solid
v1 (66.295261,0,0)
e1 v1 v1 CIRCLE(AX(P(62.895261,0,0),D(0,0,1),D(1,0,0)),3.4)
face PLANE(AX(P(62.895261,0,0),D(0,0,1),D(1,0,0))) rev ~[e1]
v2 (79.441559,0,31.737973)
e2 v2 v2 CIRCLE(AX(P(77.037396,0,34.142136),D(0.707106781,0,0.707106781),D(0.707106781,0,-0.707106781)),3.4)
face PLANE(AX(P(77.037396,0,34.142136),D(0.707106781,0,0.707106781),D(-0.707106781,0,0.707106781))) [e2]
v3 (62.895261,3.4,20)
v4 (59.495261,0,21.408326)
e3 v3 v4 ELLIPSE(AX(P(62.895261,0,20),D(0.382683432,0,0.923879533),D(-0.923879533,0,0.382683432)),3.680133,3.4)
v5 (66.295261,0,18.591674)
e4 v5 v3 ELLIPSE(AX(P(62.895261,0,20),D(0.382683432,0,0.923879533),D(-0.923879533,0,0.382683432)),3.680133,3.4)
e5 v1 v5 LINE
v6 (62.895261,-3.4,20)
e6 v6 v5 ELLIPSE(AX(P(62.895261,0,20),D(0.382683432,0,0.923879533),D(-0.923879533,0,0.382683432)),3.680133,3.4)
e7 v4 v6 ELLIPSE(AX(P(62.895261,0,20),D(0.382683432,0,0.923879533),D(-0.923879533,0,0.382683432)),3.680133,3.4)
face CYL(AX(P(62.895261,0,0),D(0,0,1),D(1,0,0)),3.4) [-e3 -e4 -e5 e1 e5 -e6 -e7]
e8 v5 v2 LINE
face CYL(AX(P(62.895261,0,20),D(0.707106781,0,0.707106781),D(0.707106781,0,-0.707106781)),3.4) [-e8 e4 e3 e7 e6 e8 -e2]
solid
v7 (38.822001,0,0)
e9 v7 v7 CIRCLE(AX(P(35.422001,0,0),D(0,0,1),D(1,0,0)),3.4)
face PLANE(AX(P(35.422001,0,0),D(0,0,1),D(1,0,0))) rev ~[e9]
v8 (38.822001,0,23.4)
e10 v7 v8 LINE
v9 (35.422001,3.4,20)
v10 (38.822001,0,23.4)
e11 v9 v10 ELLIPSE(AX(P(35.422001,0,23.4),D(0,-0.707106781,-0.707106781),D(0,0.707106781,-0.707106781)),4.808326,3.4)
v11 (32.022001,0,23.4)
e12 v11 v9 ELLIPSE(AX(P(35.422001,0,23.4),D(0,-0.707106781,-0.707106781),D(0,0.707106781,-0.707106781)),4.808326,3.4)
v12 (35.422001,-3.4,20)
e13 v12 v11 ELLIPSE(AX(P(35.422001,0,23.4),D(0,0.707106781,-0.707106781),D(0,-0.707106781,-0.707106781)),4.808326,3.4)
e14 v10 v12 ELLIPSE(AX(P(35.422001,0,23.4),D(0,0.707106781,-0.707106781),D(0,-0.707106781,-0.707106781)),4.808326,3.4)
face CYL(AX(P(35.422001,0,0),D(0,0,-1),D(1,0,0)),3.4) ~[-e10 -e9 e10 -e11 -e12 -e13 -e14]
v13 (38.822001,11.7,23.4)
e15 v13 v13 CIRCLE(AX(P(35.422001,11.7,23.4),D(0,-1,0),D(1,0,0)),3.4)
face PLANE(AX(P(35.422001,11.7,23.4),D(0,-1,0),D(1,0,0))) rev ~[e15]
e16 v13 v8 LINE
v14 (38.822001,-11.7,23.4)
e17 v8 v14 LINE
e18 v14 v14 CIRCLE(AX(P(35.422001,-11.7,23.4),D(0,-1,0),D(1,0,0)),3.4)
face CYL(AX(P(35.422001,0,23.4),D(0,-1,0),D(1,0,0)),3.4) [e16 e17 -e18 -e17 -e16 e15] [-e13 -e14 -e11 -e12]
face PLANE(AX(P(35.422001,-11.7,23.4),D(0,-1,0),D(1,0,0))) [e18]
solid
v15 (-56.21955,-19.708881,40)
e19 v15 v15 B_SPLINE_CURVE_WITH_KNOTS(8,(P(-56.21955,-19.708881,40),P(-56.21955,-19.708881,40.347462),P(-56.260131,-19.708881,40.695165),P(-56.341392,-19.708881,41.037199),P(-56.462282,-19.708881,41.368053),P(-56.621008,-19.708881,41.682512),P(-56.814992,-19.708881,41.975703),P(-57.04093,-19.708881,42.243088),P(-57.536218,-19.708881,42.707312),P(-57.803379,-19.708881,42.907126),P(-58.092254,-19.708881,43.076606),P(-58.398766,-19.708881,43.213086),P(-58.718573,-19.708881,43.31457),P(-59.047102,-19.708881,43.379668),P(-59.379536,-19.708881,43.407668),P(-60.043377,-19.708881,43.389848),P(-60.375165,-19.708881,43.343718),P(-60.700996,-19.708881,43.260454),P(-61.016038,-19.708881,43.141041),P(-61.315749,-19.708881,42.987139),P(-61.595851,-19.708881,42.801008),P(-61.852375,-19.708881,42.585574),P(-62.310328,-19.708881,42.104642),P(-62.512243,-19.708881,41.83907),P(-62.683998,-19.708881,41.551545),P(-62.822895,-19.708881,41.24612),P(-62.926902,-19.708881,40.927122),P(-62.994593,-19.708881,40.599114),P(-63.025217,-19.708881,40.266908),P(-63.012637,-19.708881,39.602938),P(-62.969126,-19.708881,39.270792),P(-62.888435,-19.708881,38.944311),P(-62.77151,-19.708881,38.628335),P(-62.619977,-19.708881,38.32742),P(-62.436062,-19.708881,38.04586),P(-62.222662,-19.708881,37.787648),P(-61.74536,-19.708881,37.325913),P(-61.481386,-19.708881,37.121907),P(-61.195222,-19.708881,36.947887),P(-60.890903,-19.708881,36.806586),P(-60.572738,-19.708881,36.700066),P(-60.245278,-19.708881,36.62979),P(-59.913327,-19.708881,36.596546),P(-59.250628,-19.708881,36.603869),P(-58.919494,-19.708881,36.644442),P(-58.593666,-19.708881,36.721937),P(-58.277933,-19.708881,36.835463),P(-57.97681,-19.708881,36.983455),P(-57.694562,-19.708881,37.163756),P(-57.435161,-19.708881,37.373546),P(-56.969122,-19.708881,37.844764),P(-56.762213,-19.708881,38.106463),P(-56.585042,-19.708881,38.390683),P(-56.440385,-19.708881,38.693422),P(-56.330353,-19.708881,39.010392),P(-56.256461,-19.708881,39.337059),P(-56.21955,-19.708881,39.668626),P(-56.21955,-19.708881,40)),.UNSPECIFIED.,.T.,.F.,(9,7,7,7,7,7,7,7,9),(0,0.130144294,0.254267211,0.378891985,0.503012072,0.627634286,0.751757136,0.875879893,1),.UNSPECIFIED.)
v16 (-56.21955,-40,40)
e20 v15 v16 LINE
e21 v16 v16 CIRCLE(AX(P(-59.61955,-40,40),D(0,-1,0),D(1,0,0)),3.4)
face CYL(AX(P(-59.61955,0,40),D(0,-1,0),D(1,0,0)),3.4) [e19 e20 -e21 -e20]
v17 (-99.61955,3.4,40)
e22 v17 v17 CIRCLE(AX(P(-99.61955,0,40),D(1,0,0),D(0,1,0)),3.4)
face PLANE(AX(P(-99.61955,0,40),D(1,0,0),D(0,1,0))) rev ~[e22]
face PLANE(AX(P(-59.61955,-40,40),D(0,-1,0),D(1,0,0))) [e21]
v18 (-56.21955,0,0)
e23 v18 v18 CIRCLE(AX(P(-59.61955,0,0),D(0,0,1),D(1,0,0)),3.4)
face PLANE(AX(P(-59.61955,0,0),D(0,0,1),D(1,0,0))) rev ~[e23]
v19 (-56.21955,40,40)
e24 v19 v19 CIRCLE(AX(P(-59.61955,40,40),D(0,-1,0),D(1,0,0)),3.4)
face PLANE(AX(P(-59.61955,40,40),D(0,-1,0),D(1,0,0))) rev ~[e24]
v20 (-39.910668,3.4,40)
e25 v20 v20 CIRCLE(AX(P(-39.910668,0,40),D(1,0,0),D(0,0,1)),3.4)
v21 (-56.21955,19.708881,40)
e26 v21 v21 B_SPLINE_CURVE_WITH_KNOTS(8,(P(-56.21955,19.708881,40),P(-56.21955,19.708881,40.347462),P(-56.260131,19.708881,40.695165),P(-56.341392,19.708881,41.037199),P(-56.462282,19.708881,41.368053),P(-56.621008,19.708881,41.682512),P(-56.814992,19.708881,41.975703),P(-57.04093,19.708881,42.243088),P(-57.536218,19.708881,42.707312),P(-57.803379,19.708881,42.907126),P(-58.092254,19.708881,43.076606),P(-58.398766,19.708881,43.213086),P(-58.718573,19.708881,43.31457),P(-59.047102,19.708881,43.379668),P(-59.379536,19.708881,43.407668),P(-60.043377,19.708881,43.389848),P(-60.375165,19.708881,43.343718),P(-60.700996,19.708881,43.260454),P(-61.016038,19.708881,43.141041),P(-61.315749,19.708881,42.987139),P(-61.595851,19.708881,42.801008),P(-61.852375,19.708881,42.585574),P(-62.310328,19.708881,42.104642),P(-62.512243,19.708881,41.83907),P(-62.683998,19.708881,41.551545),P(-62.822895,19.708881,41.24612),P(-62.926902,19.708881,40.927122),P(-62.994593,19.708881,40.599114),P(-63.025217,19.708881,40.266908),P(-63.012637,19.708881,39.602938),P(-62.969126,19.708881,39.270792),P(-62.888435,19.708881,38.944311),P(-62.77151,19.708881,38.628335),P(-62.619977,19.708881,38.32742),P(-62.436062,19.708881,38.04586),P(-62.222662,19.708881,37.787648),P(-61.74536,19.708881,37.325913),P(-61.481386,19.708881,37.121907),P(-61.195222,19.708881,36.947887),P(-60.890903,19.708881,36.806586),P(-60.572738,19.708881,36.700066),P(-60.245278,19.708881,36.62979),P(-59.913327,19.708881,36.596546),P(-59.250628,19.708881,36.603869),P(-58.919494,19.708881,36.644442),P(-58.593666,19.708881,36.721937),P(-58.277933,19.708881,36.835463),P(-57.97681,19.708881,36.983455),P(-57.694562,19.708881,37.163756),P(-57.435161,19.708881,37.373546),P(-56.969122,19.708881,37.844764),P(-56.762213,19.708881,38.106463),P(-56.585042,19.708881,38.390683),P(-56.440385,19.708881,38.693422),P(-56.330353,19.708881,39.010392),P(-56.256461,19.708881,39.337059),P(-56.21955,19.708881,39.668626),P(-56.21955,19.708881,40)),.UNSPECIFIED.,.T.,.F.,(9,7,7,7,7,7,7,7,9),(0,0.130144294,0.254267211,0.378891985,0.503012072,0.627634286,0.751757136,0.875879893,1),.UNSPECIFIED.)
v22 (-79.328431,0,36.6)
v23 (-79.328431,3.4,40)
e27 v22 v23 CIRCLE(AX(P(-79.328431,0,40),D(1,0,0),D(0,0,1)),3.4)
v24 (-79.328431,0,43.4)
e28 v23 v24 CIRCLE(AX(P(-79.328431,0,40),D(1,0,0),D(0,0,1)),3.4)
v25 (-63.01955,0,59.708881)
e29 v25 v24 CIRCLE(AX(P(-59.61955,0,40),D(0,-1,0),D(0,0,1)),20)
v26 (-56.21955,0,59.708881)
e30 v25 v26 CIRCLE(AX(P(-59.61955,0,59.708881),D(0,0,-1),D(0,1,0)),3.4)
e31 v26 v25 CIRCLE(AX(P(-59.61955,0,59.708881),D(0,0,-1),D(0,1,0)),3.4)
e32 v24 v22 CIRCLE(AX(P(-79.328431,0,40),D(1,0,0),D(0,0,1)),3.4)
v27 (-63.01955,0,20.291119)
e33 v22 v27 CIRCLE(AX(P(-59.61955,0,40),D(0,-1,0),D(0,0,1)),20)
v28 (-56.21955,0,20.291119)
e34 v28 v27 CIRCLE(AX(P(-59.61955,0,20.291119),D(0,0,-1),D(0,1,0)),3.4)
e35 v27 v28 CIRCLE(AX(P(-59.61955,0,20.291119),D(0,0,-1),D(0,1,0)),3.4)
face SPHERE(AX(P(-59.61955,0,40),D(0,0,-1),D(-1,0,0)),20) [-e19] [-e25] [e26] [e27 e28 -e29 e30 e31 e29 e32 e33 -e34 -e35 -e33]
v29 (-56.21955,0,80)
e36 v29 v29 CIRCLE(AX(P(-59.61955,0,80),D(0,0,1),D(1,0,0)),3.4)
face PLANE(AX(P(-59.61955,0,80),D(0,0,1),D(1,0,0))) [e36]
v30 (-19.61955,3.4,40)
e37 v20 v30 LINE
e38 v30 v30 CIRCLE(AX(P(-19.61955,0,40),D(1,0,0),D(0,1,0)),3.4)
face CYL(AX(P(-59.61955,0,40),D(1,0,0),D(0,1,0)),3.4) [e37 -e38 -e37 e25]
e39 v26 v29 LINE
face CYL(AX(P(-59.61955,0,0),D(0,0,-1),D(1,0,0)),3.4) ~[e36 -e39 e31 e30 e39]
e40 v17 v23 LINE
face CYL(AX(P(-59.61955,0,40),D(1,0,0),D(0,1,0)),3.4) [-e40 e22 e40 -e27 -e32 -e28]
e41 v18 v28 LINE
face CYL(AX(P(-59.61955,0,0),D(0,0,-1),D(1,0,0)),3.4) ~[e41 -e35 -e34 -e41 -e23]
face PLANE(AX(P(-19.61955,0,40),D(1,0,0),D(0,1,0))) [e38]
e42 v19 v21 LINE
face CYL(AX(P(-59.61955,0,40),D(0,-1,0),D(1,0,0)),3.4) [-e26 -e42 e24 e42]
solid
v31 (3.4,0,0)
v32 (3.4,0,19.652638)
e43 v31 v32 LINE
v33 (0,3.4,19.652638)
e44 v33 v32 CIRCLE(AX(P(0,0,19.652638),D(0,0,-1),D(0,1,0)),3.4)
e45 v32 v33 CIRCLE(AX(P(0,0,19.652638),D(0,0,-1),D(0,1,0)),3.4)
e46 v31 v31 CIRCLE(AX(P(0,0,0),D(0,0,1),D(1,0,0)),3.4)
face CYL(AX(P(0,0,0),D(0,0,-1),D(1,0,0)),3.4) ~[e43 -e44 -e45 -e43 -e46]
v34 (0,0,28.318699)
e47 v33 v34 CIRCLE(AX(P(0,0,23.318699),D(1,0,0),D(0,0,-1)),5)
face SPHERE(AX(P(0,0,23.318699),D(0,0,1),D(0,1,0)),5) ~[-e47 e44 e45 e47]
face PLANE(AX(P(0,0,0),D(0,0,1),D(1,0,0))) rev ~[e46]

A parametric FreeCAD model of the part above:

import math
import FreeCAD as App
import Part
import Sketcher
Q = App.Units.Quantity

doc = App.newDocument("Part")
params = doc.addObject("Spreadsheet::Sheet", "Params")
for row, (alias, value) in enumerate([
    ("sketch1_diameter", "6.8 mm"),
    ("pad1_length", "20 mm"),
    ("sketch2_radius", "5 mm"),
    ("revolution_angle", "360 deg"),
    ("sketch3_diameter", "6.8 mm"),
    ("pad2_length", "23.4 mm"),
    ("sketch4_diameter", "6.8 mm"),
    ("pad3_length", "23.4 mm"),
    ("sketch5_diameter", "6.8 mm"),
    ("sketch6_height", "20 mm"),
    ("sketch6_length", "20 mm"),
    ("sketch7_diameter", "6.8 mm"),
    ("pad4_length", "80 mm"),
    ("sketch8_diameter", "6.8 mm"),
    ("pad5_length", "80 mm"),
    ("sketch9_diameter", "6.8 mm"),
    ("pad6_length", "80 mm"),
    ("sketch10_radius", "20 mm"),
    ("revolution2_angle", "360 deg"),
], start=1):
    params.set(f"A{row}", alias)
    params.set(f"B{row}", "=" + value)
    params.setAlias(f"B{row}", alias)

body = doc.addObject("PartDesign::Body", "Body")

# Sketch on XY plane
sketch1 = body.newObject("Sketcher::SketchObject", "Sketch")
sketch1.AttachmentSupport = (doc.getObject("XY_Plane"), [""])
sketch1.MapMode = "FlatFace"
sketch1.addGeometry(Part.Circle(App.Vector(0, 0, 0), App.Vector(0, 0, 1), 3.4), False)
sketch1.addConstraint([
    Sketcher.Constraint("Coincident", 0, 3, -1, 1),
    Sketcher.Constraint("Diameter", 0, 6.8),
])
sketch1.setExpression("Constraints[1]", "Params.sketch1_diameter")
pad1 = body.newObject("PartDesign::Pad", "Pad")
pad1.Profile = sketch1
pad1.setExpression("Length", "Params.pad1_length")

# Sketch on YZ plane
sketch2 = body.newObject("Sketcher::SketchObject", "Sketch001")
sketch2.AttachmentSupport = (doc.getObject("YZ_Plane"), [""])
sketch2.MapMode = "FlatFace"
sketch2.addGeometry([
    Part.LineSegment(App.Vector(0, 28, 0), App.Vector(0, 18, 0)),
    Part.ArcOfCircle(Part.Circle(App.Vector(0, 23, 0), App.Vector(0, 0, 1), 5), math.radians(-90), math.radians(90)),
], False)
sketch2.addConstraint([
    Sketcher.Constraint("Coincident", 0, 1, 1, 2),
    Sketcher.Constraint("Coincident", 1, 1, 0, 2),
    Sketcher.Constraint("Vertical", 0),
    Sketcher.Constraint("PointOnObject", 1, 3, -2),
    Sketcher.Constraint("PointOnObject", 0, 1, -2),
    Sketcher.Constraint("Radius", 1, 5.0),
    Sketcher.Constraint("DistanceY", -1, 1, 1, 3, 23.318699),
])
sketch2.setExpression("Constraints[5]", "Params.sketch2_radius")
revolution = body.newObject("PartDesign::Revolution", "Revolution")
revolution.Profile = sketch2
revolution.ReferenceAxis = (sketch2, ["V_Axis"])
revolution.setExpression("Angle", "Params.revolution_angle")
body2 = doc.addObject("PartDesign::Body", "Body001")

# Sketch on XY plane
sketch3 = body2.newObject("Sketcher::SketchObject", "Sketch002")
sketch3.AttachmentSupport = (doc.getObject("XY_Plane001"), [""])
sketch3.MapMode = "FlatFace"
sketch3.addGeometry(Part.Circle(App.Vector(35.4, 0, 0), App.Vector(0, 0, 1), 3.4), False)
sketch3.addConstraint([
    Sketcher.Constraint("PointOnObject", 0, 3, -1),
    Sketcher.Constraint("Diameter", 0, 6.8),
    Sketcher.Constraint("DistanceX", -1, 1, 0, 3, 35.422001),
])
sketch3.setExpression("Constraints[1]", "Params.sketch3_diameter")
pad2 = body2.newObject("PartDesign::Pad", "Pad001")
pad2.Profile = sketch3
pad2.setExpression("Length", "Params.pad2_length")

# Sketch on XZ plane
sketch4 = body2.newObject("Sketcher::SketchObject", "Sketch003")
sketch4.AttachmentSupport = (doc.getObject("XZ_Plane001"), [""])
sketch4.MapMode = "FlatFace"
sketch4.addGeometry(Part.Circle(App.Vector(35.4, 23.4, 0), App.Vector(0, 0, 1), 3.4), False)
sketch4.addConstraint([
    Sketcher.Constraint("Diameter", 0, 6.8),
    Sketcher.Constraint("DistanceY", -1, 1, 0, 3, 23.4),
    Sketcher.Constraint("DistanceX", -1, 1, 0, 3, 35.422001),
])
sketch4.setExpression("Constraints[0]", "Params.sketch4_diameter")
pad3 = body2.newObject("PartDesign::Pad", "Pad002")
pad3.Profile = sketch4
pad3.setExpression("Length", "Params.pad3_length")
pad3.Midplane = True
body3 = doc.addObject("PartDesign::Body", "Body002")

# Sketch on XY plane
sketch5 = body3.newObject("Sketcher::SketchObject", "Sketch004")
sketch5.AttachmentSupport = (doc.getObject("XY_Plane002"), [""])
sketch5.MapMode = "FlatFace"
sketch5.addGeometry(Part.Circle(App.Vector(62.9, 0, 0), App.Vector(0, 0, 1), 3.4), False)
sketch5.addConstraint([
    Sketcher.Constraint("PointOnObject", 0, 3, -1),
    Sketcher.Constraint("Diameter", 0, 6.8),
    Sketcher.Constraint("DistanceX", -1, 1, 0, 3, 62.895261),
])
sketch5.setExpression("Constraints[1]", "Params.sketch5_diameter")

# Sketch on XZ plane
sketch6 = body3.newObject("Sketcher::SketchObject", "Sketch005")
sketch6.AttachmentSupport = (doc.getObject("XZ_Plane002"), [""])
sketch6.MapMode = "FlatFace"
sketch6.addGeometry([
    Part.LineSegment(App.Vector(63, 0, 0), App.Vector(63, 20, 0)),
    Part.LineSegment(App.Vector(63, 20, 0), App.Vector(77, 34, 0)),
], False)
sketch6.addConstraint([
    Sketcher.Constraint("Coincident", 0, 2, 1, 1),
    Sketcher.Constraint("Vertical", 0),
    Sketcher.Constraint("PointOnObject", 0, 1, -1),
    Sketcher.Constraint("DistanceY", 0, 1, 0, 2, 20.0),
    Sketcher.Constraint("Angle", 1, Q("45 deg")),
    Sketcher.Constraint("Distance", 1, 20.0),
    Sketcher.Constraint("DistanceX", -1, 1, 0, 1, 62.895261),
])
sketch6.setExpression("Constraints[3]", "Params.sketch6_height")
sketch6.setExpression("Constraints[5]", "Params.sketch6_length")
doc.recompute()

additivepipe = body3.newObject("PartDesign::AdditivePipe", "AdditivePipe")
additivepipe.Profile = sketch5
additivepipe.Spine = (sketch6, ["Edge1", "Edge2"])
additivepipe.Transition = "Right corner"
body4 = doc.addObject("PartDesign::Body", "Body003")

# Sketch on XY plane
sketch7 = body4.newObject("Sketcher::SketchObject", "Sketch006")
sketch7.AttachmentSupport = (doc.getObject("XY_Plane003"), [""])
sketch7.MapMode = "FlatFace"
sketch7.addGeometry(Part.Circle(App.Vector(-59.6, 0, 0), App.Vector(0, 0, 1), 3.4), False)
sketch7.addConstraint([
    Sketcher.Constraint("PointOnObject", 0, 3, -1),
    Sketcher.Constraint("Diameter", 0, 6.8),
    Sketcher.Constraint("DistanceX", 0, 3, -1, 1, 59.61955),
])
sketch7.setExpression("Constraints[1]", "Params.sketch7_diameter")
pad4 = body4.newObject("PartDesign::Pad", "Pad003")
pad4.Profile = sketch7
pad4.setExpression("Length", "Params.pad4_length")

# Sketch on XZ plane
sketch8 = body4.newObject("Sketcher::SketchObject", "Sketch007")
sketch8.AttachmentSupport = (doc.getObject("XZ_Plane003"), [""])
sketch8.MapMode = "FlatFace"
sketch8.addGeometry(Part.Circle(App.Vector(-59.6, 40, 0), App.Vector(0, 0, 1), 3.4), False)
sketch8.addConstraint([
    Sketcher.Constraint("Diameter", 0, 6.8),
    Sketcher.Constraint("DistanceY", -1, 1, 0, 3, 40.0),
    Sketcher.Constraint("DistanceX", 0, 3, -1, 1, 59.61955),
])
sketch8.setExpression("Constraints[0]", "Params.sketch8_diameter")
pad5 = body4.newObject("PartDesign::Pad", "Pad004")
pad5.Profile = sketch8
pad5.setExpression("Length", "Params.pad5_length")
pad5.Midplane = True

# Sketch on YZ plane
sketch9 = body4.newObject("Sketcher::SketchObject", "Sketch008")
sketch9.AttachmentSupport = (doc.getObject("YZ_Plane003"), [""])
sketch9.MapMode = "FlatFace"
sketch9.AttachmentOffset = App.Placement(App.Vector(0, 0, -59.61955), App.Rotation())
sketch9.addGeometry(Part.Circle(App.Vector(0, 40, 0), App.Vector(0, 0, 1), 3.4), False)
sketch9.addConstraint([
    Sketcher.Constraint("PointOnObject", 0, 3, -2),
    Sketcher.Constraint("Diameter", 0, 6.8),
    Sketcher.Constraint("DistanceY", -1, 1, 0, 3, 40.0),
])
sketch9.setExpression("Constraints[1]", "Params.sketch9_diameter")
pad6 = body4.newObject("PartDesign::Pad", "Pad005")
pad6.Profile = sketch9
pad6.setExpression("Length", "Params.pad6_length")
pad6.Midplane = True

# Sketch on XZ plane
sketch10 = body4.newObject("Sketcher::SketchObject", "Sketch009")
sketch10.AttachmentSupport = (doc.getObject("XZ_Plane003"), [""])
sketch10.MapMode = "FlatFace"
sketch10.addGeometry([
    Part.LineSegment(App.Vector(-60, 20, 0), App.Vector(-60, 60, 0)),
    Part.ArcOfCircle(Part.Circle(App.Vector(-60, 40, 0), App.Vector(0, 0, 1), 20), math.radians(90), math.radians(270)),
], False)
sketch10.addGeometry(Part.LineSegment(App.Vector(-60, 60, 0), App.Vector(-60, 20, 0)), True)  # axis
sketch10.addConstraint([
    Sketcher.Constraint("Coincident", 0, 1, 1, 2),
    Sketcher.Constraint("Coincident", 1, 1, 0, 2),
    Sketcher.Constraint("Vertical", 0),
    Sketcher.Constraint("Vertical", 2),
    Sketcher.Constraint("Coincident", 2, 1, 1, 1),
    Sketcher.Constraint("Vertical", 1, 3, 0, 1),
    Sketcher.Constraint("Equal", 0, 2),
    Sketcher.Constraint("Radius", 1, 20.0),
    Sketcher.Constraint("DistanceY", -1, 1, 1, 3, 40.0),
    Sketcher.Constraint("DistanceX", 1, 3, -1, 1, 59.61955),
])
sketch10.setExpression("Constraints[7]", "Params.sketch10_radius")
revolution2 = body4.newObject("PartDesign::Revolution", "Revolution001")
revolution2.Profile = sketch10
revolution2.ReferenceAxis = (sketch10, ["Axis0"])
revolution2.setExpression("Angle", "Params.revolution2_angle")

doc.recompute()
